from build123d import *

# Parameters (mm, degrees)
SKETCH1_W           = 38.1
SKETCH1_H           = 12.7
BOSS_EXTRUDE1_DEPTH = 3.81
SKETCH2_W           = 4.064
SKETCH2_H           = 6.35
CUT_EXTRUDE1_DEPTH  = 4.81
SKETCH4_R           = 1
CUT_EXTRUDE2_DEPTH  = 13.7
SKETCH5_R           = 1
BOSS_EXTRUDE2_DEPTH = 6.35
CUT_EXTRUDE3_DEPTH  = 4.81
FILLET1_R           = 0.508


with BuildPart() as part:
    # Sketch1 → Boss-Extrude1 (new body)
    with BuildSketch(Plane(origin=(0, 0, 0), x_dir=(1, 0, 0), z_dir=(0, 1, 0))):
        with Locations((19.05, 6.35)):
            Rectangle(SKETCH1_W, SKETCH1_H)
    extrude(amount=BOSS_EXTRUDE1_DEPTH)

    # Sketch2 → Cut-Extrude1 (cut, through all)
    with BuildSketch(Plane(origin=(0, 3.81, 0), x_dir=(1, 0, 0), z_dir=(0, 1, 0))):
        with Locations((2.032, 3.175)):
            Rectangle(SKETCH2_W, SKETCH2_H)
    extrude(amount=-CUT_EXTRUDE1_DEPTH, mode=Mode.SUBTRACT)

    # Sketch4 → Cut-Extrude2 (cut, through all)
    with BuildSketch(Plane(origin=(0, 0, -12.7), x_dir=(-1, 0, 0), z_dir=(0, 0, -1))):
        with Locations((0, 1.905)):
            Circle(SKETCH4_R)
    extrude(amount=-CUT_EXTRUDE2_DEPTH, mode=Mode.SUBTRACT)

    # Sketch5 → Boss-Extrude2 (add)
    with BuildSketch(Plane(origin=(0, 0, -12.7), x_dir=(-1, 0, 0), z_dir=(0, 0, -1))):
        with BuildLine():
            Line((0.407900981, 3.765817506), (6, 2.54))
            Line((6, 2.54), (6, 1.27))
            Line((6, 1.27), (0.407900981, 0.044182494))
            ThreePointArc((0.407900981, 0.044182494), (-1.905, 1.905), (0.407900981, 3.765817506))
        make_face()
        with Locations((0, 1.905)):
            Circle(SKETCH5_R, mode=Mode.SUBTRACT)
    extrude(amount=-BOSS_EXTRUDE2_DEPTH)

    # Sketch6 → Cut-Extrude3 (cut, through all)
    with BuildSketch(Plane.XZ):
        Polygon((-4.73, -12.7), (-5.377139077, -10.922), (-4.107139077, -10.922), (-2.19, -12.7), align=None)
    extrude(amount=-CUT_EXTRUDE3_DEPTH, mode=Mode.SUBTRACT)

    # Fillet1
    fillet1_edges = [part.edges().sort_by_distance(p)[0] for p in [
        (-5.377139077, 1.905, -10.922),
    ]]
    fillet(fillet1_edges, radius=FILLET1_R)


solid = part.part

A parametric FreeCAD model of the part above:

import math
import FreeCAD as App
import Part
import Sketcher
Q = App.Units.Quantity


def edges_at(feature, points):
    """Names of the edges that pass closest to the given points."""
    edges = feature.Shape.Edges
    near = lambda p: min(range(len(edges)), key=lambda i: edges[i].distToShape(Part.Vertex(*p))[0])
    return sorted({f"Edge{near(p) + 1}" for p in points})


def add_polygon(sketch, points):
    """Adds a closed chain of lines whose ends are joined by coincident constraints."""
    first, n = sketch.GeometryCount, len(points)
    for a, b in zip(points, points[1:] + points[:1]):
        sketch.addGeometry(Part.LineSegment(App.Vector(*a, 0), App.Vector(*b, 0)), False)
    for i in range(n):
        sketch.addConstraint(Sketcher.Constraint("Coincident", first + i, 2, first + (i + 1) % n, 1))

doc = App.newDocument("Part")
body = doc.addObject("PartDesign::Body", "Body")

# Sketch on XZ plane
sketch1 = body.newObject("Sketcher::SketchObject", "Sketch")
sketch1.AttachmentSupport = (doc.getObject("XZ_Plane"), [""])
sketch1.MapMode = "FlatFace"
add_polygon(sketch1, [(0, -13), (0, 0), (38, 0), (38, -13)])  # lines 0-3
sketch1.addConstraint([
    Sketcher.Constraint("Vertical", 0),
    Sketcher.Constraint("Horizontal", 1),
    Sketcher.Constraint("Vertical", 2),
    Sketcher.Constraint("Horizontal", 3),
    Sketcher.Constraint("Coincident", 0, 2, -1, 1),
    Sketcher.Constraint("DistanceX", 1, 1, 1, 2, Q("1.5 in")),
    Sketcher.Constraint("DistanceY", 0, 1, 0, 2, Q("0.5 in")),
])
pad1 = body.newObject("PartDesign::Pad", "Pad")
pad1.Profile = sketch1
pad1.Length = Q("0.15 in")
pad1.Reversed = True

# Sketch on XZ plane
sketch2 = body.newObject("Sketcher::SketchObject", "Sketch001")
sketch2.AttachmentSupport = (doc.getObject("XZ_Plane"), [""])
sketch2.MapMode = "FlatFace"
sketch2.AttachmentOffset = App.Placement(App.Vector(0, 0, -0.15 * 25.4), App.Rotation())
add_polygon(sketch2, [(0, -6.3), (0, 0), (4.1, 0), (4.1, -6.3)])  # lines 0-3
sketch2.addConstraint([
    Sketcher.Constraint("Vertical", 0),
    Sketcher.Constraint("Horizontal", 1),
    Sketcher.Constraint("Vertical", 2),
    Sketcher.Constraint("Horizontal", 3),
    Sketcher.Constraint("Coincident", 0, 2, -1, 1),
    Sketcher.Constraint("DistanceX", 1, 1, 1, 2, Q("0.16 in")),
    Sketcher.Constraint("DistanceY", 0, 1, 0, 2, Q("0.25 in")),
])
pocket1 = body.newObject("PartDesign::Pocket", "Pocket")
pocket1.Profile = sketch2
pocket1.Type = "ThroughAll"
pocket1.Reversed = True

# Sketch on XY plane
sketch3 = body.newObject("Sketcher::SketchObject", "Sketch002")
sketch3.AttachmentSupport = (doc.getObject("XY_Plane"), [""])
sketch3.MapMode = "FlatFace"
sketch3.AttachmentOffset = App.Placement(App.Vector(0, 0, -0.5 * 25.4), App.Rotation())
sketch3.addGeometry(Part.Circle(App.Vector(0, 1.9, 0), App.Vector(0, 0, 1), 1), False)
sketch3.addConstraint([
    Sketcher.Constraint("PointOnObject", 0, 3, -2),
    Sketcher.Constraint("Diameter", 0, Q("2 mm")),
    Sketcher.Constraint("DistanceY", -1, 1, 0, 3, Q("0.075 in")),
])
pocket2 = body.newObject("PartDesign::Pocket", "Pocket001")
pocket2.Profile = sketch3
pocket2.Type = "ThroughAll"
pocket2.Reversed = True

# Sketch on XY plane
sketch4 = body.newObject("Sketcher::SketchObject", "Sketch003")
sketch4.AttachmentSupport = (doc.getObject("XY_Plane"), [""])
sketch4.MapMode = "FlatFace"
sketch4.AttachmentOffset = App.Placement(App.Vector(0, 0, -0.5 * 25.4), App.Rotation())
sketch4.addGeometry([
    Part.LineSegment(App.Vector(-6, 2.5, 0), App.Vector(-0.4, 3.8, 0)),  # 0
    Part.ArcOfCircle(Part.Circle(App.Vector(0, 1.9, 0), App.Vector(0, 0, 1), 1.9), math.radians(-102), math.radians(102)),  # 1
    Part.LineSegment(App.Vector(-0.4, 0, 0), App.Vector(-6, 1.3, 0)),  # 2
    Part.LineSegment(App.Vector(-6, 1.3, 0), App.Vector(-6, 2.5, 0)),  # 3
    Part.Circle(App.Vector(0, 1.9, 0), App.Vector(0, 0, 1), 1),  # 4
], False)
sketch4.addConstraint([
    Sketcher.Constraint("Tangent", 0, 2, 1, 2),
    Sketcher.Constraint("Tangent", 1, 1, 2, 1),
    Sketcher.Constraint("Coincident", 2, 2, 3, 1),
    Sketcher.Constraint("Coincident", 3, 2, 0, 1),
    Sketcher.Constraint("Vertical", 3),
    Sketcher.Constraint("Coincident", 4, 3, 1, 3),
    Sketcher.Constraint("PointOnObject", 1, 3, -2),
    Sketcher.Constraint("Vertical", 0, 2, 1, 1),
    Sketcher.Constraint("Radius", 1, Q("0.075 in")),
    Sketcher.Constraint("DistanceY", 3, 1, 3, 2, Q("0.05 in")),
    Sketcher.Constraint("DistanceY", -1, 1, 3, 2, Q("0.1 in")),
    Sketcher.Constraint("Diameter", 4, Q("2 mm")),
    Sketcher.Constraint("DistanceX", 0, 2, -1, 1, Q("0.407901 mm")),
])
pad2 = body.newObject("PartDesign::Pad", "Pad001")
pad2.Profile = sketch4
pad2.Length = Q("0.25 in")

# Sketch on XZ plane
sketch5 = body.newObject("Sketcher::SketchObject", "Sketch004")
sketch5.AttachmentSupport = (doc.getObject("XZ_Plane"), [""])
sketch5.MapMode = "FlatFace"
add_polygon(sketch5, [(-5.4, -10.9), (-4.7, -12.7), (-2.2, -12.7), (-4.1, -10.9)])  # lines 0-3
sketch5.addConstraint([
    Sketcher.Constraint("Horizontal", 1),
    Sketcher.Constraint("Horizontal", 3),
    Sketcher.Constraint("DistanceX", 1, 1, 1, 2, Q("0.1 in")),
    Sketcher.Constraint("Angle", 0, Q("-70 deg")),
    Sketcher.Constraint("DistanceX", 3, 2, 3, 1, Q("0.05 in")),
    Sketcher.Constraint("DistanceY", 0, 2, -1, 1, Q("0.5 in")),
    Sketcher.Constraint("DistanceY", 2, 2, -1, 1, Q("0.43 in")),
    Sketcher.Constraint("DistanceX", 0, 2, -1, 1, Q("4.73 mm")),
])
pocket3 = body.newObject("PartDesign::Pocket", "Pocket002")
pocket3.Profile = sketch5
pocket3.Type = "ThroughAll"
doc.recompute()

fillet = body.newObject("PartDesign::Fillet", "Fillet")
fillet.Base = (pocket3, edges_at(pocket3, [(-5.377, 1.905, -10.922)]))
fillet.Radius = Q("0.02 in")

doc.recompute()
